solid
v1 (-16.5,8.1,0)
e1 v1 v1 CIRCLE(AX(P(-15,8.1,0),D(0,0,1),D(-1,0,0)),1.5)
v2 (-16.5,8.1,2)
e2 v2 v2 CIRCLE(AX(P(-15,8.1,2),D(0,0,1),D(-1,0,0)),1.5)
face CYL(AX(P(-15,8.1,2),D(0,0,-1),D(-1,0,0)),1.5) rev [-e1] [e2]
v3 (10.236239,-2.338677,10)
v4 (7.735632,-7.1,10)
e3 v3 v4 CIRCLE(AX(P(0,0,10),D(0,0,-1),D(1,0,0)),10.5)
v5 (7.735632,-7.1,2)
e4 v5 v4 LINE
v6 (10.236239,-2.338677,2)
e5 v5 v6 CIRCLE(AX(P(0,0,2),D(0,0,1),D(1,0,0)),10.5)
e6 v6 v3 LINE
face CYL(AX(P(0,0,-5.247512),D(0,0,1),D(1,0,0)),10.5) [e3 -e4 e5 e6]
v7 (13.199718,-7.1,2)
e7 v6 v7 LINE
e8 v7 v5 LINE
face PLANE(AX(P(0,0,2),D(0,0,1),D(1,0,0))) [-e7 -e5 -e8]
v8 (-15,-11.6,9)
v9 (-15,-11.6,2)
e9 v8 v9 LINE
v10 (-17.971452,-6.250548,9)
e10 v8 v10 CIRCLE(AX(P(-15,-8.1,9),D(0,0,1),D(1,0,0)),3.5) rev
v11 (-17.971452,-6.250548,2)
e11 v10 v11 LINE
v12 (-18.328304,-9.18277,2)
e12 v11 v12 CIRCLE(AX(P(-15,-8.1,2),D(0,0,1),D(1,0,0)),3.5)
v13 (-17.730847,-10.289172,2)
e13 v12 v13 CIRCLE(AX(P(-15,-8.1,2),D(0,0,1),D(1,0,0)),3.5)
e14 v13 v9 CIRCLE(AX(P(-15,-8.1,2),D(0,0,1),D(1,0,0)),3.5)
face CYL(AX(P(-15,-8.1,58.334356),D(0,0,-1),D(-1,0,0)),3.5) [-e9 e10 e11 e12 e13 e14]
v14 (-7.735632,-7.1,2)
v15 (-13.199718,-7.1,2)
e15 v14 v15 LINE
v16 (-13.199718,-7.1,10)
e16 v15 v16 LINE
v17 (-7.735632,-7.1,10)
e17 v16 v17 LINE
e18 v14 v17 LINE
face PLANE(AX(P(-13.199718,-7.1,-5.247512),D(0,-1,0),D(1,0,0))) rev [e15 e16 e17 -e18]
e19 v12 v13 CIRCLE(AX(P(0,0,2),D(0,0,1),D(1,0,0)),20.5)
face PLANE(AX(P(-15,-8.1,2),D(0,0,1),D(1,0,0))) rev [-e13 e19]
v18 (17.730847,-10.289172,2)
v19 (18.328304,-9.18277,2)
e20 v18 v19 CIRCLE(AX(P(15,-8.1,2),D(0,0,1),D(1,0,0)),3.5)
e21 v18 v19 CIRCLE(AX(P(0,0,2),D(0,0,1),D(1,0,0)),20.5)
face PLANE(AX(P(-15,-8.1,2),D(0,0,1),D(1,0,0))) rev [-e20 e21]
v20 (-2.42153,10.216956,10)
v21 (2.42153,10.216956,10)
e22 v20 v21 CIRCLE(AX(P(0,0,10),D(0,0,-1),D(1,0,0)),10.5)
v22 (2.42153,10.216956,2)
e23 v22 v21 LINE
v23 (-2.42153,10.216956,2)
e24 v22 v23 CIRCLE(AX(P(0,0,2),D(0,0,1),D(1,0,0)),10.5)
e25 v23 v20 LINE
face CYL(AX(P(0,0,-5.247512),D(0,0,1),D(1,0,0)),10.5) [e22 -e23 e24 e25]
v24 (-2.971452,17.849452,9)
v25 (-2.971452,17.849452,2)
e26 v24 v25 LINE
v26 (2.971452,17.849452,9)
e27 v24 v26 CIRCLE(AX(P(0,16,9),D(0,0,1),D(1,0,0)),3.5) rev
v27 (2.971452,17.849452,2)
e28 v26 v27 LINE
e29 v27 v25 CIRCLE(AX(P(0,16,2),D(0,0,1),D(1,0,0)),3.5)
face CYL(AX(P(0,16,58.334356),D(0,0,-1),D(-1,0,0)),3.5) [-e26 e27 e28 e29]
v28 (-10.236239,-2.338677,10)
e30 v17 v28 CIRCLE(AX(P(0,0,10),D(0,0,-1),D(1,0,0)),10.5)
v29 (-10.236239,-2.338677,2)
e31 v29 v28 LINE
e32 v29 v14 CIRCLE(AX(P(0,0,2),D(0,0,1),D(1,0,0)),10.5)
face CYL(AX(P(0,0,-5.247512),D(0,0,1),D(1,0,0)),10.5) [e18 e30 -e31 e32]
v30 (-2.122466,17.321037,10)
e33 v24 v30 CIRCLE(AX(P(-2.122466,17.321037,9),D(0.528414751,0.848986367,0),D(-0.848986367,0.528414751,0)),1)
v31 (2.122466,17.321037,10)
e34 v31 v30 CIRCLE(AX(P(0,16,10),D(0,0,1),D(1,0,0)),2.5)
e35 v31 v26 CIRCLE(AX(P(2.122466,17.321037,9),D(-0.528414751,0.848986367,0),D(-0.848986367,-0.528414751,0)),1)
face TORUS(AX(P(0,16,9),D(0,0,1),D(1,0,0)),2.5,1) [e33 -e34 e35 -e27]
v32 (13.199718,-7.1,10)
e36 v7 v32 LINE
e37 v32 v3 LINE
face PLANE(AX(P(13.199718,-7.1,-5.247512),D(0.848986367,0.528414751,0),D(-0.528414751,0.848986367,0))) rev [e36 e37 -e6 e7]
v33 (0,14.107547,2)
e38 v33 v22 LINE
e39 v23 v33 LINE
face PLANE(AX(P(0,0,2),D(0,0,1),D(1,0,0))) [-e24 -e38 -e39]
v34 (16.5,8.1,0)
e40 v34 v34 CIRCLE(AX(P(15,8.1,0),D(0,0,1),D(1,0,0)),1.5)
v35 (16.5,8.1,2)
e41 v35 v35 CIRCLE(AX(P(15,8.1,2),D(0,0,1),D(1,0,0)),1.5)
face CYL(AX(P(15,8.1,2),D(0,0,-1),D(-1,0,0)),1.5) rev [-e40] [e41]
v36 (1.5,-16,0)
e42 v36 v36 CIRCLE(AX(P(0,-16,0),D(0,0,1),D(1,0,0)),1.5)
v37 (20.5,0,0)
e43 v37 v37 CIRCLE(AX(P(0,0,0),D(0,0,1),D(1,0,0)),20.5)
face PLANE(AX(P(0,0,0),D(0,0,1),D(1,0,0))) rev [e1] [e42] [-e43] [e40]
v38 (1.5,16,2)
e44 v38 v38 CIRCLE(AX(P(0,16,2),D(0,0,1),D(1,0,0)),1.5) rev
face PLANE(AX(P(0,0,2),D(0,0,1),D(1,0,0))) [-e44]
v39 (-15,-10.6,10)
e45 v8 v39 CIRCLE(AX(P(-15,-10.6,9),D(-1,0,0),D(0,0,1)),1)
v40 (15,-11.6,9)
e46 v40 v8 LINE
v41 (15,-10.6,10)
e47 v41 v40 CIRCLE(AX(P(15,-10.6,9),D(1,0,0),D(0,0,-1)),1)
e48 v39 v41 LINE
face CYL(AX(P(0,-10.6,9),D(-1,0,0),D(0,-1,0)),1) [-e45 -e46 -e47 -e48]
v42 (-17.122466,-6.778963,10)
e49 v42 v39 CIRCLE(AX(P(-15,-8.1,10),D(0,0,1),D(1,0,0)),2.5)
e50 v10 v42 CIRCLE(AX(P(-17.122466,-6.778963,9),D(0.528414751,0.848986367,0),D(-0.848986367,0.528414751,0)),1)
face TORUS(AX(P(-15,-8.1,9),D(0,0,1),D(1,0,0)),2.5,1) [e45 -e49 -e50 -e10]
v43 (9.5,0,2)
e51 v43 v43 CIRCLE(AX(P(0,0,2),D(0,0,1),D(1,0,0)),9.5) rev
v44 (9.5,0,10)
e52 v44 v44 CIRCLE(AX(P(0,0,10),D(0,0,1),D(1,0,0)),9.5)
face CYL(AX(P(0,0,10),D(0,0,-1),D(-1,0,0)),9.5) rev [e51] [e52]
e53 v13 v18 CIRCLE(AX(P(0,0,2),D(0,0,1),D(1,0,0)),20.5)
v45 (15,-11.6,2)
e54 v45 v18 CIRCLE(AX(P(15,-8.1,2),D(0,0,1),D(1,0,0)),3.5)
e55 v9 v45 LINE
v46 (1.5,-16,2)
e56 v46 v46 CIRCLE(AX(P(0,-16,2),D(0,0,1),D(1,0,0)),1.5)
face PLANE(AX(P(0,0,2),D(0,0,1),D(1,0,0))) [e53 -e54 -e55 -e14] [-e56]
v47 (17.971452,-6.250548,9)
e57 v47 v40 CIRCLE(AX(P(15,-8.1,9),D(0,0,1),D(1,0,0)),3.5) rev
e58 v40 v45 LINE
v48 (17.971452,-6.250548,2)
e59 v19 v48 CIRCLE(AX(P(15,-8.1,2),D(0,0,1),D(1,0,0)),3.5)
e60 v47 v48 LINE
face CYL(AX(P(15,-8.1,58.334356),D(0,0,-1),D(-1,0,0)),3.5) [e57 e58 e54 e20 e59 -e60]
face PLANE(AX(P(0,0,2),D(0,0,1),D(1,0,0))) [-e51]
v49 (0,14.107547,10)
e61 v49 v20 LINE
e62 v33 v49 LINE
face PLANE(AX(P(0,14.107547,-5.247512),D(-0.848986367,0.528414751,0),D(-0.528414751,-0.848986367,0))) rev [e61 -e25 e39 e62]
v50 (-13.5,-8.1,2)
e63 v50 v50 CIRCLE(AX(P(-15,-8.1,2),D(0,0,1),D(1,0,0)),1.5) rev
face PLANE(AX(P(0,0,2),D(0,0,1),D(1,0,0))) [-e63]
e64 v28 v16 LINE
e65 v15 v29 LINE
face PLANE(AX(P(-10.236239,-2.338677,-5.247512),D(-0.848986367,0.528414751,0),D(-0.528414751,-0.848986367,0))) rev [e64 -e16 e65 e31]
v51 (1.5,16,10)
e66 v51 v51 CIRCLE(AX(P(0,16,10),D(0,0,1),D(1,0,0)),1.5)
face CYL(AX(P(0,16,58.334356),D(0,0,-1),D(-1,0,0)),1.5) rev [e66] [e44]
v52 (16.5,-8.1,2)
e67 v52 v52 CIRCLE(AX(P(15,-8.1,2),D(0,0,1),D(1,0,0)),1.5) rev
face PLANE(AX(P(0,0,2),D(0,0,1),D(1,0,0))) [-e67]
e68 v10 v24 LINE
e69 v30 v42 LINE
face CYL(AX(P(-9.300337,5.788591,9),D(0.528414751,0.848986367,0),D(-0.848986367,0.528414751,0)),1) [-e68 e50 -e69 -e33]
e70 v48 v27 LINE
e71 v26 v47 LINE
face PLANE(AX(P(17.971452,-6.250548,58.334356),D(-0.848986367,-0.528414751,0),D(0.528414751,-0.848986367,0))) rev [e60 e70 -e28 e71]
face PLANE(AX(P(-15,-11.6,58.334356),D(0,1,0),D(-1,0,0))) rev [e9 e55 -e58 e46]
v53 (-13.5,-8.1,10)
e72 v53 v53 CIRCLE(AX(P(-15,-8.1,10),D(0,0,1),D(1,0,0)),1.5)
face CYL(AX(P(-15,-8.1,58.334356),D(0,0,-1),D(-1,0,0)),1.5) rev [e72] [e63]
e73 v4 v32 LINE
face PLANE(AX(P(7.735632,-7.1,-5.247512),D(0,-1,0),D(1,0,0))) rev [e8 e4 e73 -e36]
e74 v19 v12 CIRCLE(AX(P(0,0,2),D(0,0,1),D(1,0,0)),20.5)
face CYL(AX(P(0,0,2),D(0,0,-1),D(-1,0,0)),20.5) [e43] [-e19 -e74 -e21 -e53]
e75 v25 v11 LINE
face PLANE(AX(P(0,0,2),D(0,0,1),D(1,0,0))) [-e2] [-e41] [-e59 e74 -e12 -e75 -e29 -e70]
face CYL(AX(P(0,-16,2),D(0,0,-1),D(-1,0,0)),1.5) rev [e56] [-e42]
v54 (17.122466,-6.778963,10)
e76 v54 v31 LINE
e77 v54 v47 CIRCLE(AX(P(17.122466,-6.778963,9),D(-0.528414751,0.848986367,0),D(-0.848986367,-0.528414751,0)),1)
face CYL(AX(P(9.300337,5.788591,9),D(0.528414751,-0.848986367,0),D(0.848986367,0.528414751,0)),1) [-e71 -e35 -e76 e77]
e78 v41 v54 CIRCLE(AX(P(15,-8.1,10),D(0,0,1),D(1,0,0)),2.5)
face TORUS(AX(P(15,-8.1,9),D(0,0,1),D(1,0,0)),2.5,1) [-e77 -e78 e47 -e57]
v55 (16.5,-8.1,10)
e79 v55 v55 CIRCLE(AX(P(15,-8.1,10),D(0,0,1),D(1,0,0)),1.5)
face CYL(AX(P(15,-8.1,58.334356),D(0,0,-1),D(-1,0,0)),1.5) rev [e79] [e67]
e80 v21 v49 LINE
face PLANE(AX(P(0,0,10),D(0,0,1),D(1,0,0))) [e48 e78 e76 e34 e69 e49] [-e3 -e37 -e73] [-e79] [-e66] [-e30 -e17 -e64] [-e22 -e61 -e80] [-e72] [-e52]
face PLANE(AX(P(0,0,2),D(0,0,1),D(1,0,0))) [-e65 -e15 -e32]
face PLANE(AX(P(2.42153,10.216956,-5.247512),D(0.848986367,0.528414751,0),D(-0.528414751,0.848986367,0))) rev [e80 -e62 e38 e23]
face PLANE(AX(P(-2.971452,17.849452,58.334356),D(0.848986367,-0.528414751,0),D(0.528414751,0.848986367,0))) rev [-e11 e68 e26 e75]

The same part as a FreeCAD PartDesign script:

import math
import FreeCAD as App
import Part
import Sketcher

V = App.Vector


def edges_at(feature, points):
    """Names of the edges that pass closest to the given points."""
    edges = feature.Shape.Edges
    near = lambda p: min(range(len(edges)), key=lambda i: edges[i].distToShape(Part.Vertex(*p))[0])
    return sorted({f"Edge{near(p) + 1}" for p in points})

doc = App.newDocument("Part")
body = doc.addObject("PartDesign::Body", "Body")

sketch1 = doc.addObject("Sketcher::SketchObject", "Sketch")
body.addObject(sketch1)
sketch1.AttachmentSupport = (doc.XY_Plane, [""])
sketch1.MapMode = "FlatFace"
sketch1.addGeometry([
    Part.Circle(V(0, 0, 0), V(0, 0, 1), 20.5),
    Part.Circle(V(0, -16, 0), V(0, 0, 1), 1.5),
    Part.Circle(V(-15, 8.1, 0), V(0, 0, 1), 1.5),
    Part.Circle(V(15, 8.1, 0), V(0, 0, 1), 1.5),
], False)
sketch1.addConstraint([
    Sketcher.Constraint("Coincident", 0, 3, -1, 1),
    Sketcher.Constraint("Equal", 1, 2),
    Sketcher.Constraint("Equal", 2, 3),
    Sketcher.Constraint("Symmetric", 2, 3, 3, 3, -2),
    Sketcher.Constraint("PointOnObject", 1, 3, -2),
    Sketcher.Constraint("Diameter", 0, 41.0),
    Sketcher.Constraint("Diameter", 1, 3.0),
    Sketcher.Constraint("DistanceY", 1, 3, -1, 1, 16.0),
    Sketcher.Constraint("DistanceX", 2, 3, -1, 1, 15.0),
    Sketcher.Constraint("DistanceY", -1, 1, 2, 3, 8.1),
])
pad1 = doc.addObject("PartDesign::Pad", "Pad")
body.addObject(pad1)
pad1.Profile = sketch1
pad1.Length = 2

sketch2 = doc.addObject("Sketcher::SketchObject", "Sketch001")
body.addObject(sketch2)
sketch2.AttachmentSupport = (doc.XY_Plane, [""])
sketch2.MapMode = "FlatFace"
sketch2.AttachmentOffset = App.Placement(V(0, 0, 2), App.Rotation())
sketch2.addGeometry([
    Part.Circle(V(0, 0, 0), V(0, 0, 1), 12),
    Part.Circle(V(0, 0, 0), V(0, 0, 1), 10),
], False)
sketch2.addConstraint([
    Sketcher.Constraint("Coincident", 0, 3, -1, 1),
    Sketcher.Constraint("Coincident", 1, 3, -1, 1),
    Sketcher.Constraint("Diameter", 0, 23.0),
    Sketcher.Constraint("Diameter", 1, 19.0),
])
pad2 = doc.addObject("PartDesign::Pad", "Pad001")
body.addObject(pad2)
pad2.Profile = sketch2
pad2.Length = 8

sketch3 = doc.addObject("Sketcher::SketchObject", "Sketch002")
body.addObject(sketch3)
sketch3.AttachmentSupport = (doc.XY_Plane, [""])
sketch3.MapMode = "FlatFace"
sketch3.AttachmentOffset = App.Placement(V(0, 0, 2), App.Rotation())
sketch3.addGeometry([
    Part.LineSegment(V(-15, -11.6, 0), V(15, -11.6, 0)),
    Part.ArcOfCircle(Part.Circle(V(15, -8.1, 0), V(0, 0, 1), 3.5), math.radians(-90), math.radians(32)),
    Part.LineSegment(V(18, -6.3, 0), V(3, 17.8, 0)),
    Part.ArcOfCircle(Part.Circle(V(0, 16, 0), V(0, 0, 1), 3.5), math.radians(32), math.radians(148)),
    Part.LineSegment(V(-3, 17.8, 0), V(-18, -6.3, 0)),
    Part.ArcOfCircle(Part.Circle(V(-15, -8.1, 0), V(0, 0, 1), 3.5), math.radians(148), math.radians(270)),
    Part.Circle(V(-15, -8.1, 0), V(0, 0, 1), 1.5),
    Part.Circle(V(15, -8.1, 0), V(0, 0, 1), 1.5),
    Part.Circle(V(0, 0, 0), V(0, 0, 1), 9.5),
    Part.Circle(V(0, 16, 0), V(0, 0, 1), 1.5),
], False)
sketch3.addConstraint([
    Sketcher.Constraint("Tangent", 0, 2, 1, 1),
    Sketcher.Constraint("Tangent", 1, 2, 2, 1),
    Sketcher.Constraint("Tangent", 2, 2, 3, 1),
    Sketcher.Constraint("Tangent", 3, 2, 4, 1),
    Sketcher.Constraint("Tangent", 4, 2, 5, 1),
    Sketcher.Constraint("Tangent", 5, 2, 0, 1),
    Sketcher.Constraint("Horizontal", 0),
    Sketcher.Constraint("Coincident", 8, 3, -1, 1),
    Sketcher.Constraint("Coincident", 6, 3, 5, 3),
    Sketcher.Constraint("Coincident", 7, 3, 1, 3),
    Sketcher.Constraint("Coincident", 9, 3, 3, 3),
    Sketcher.Constraint("Equal", 1, 3),
    Sketcher.Constraint("Equal", 3, 5),
    Sketcher.Constraint("Equal", 6, 7),
    Sketcher.Constraint("Equal", 7, 9),
    Sketcher.Constraint("Symmetric", 2, 2, 3, 2, -2),
    Sketcher.Constraint("Diameter", 6, 3.0),
    Sketcher.Constraint("Diameter", 8, 19.0),
    Sketcher.Constraint("Radius", 1, 3.5),
    Sketcher.Constraint("DistanceX", 0, 1, 0, 2, 30.0),
    Sketcher.Constraint("DistanceY", -1, 1, 3, 3, 16.0),
    Sketcher.Constraint("DistanceY", 1, 3, -1, 1, 8.1),
])
pad3 = doc.addObject("PartDesign::Pad", "Pad002")
body.addObject(pad3)
pad3.Profile = sketch3
pad3.Length = 8
doc.recompute()

fillet = doc.addObject("PartDesign::Fillet", "Fillet")
body.addObject(fillet)
fillet.Base = (pad3, edges_at(pad3, [
    (-10.471, 5.799, 10),
    (-18.06, -9.8, 10),
    (0, -11.6, 10),
    (18.06, -9.8, 10),
    (10.471, 5.799, 10),
    (0, 19.5, 10),
]))
fillet.Radius = 1

sketch4 = doc.addObject("Sketcher::SketchObject", "Sketch003")
body.addObject(sketch4)
sketch4.AttachmentSupport = (doc.XY_Plane, [""])
sketch4.MapMode = "FlatFace"
sketch4.AttachmentOffset = App.Placement(V(0, 0, 10), App.Rotation())
sketch4.addGeometry([
    Part.LineSegment(V(-10.2, -2.3, 0), V(-13.2, -7.1, 0)),
    Part.LineSegment(V(-13.2, -7.1, 0), V(-7.7, -7.1, 0)),
    Part.ArcOfCircle(Part.Circle(V(0, 0, 0), V(0, 0, 1), 10.5), math.radians(-167), math.radians(-137)),
    Part.LineSegment(V(2.4, 10.2, 0), V(0, 14.1, 0)),
    Part.LineSegment(V(0, 14.1, 0), V(-2.4, 10.2, 0)),
    Part.ArcOfCircle(Part.Circle(V(0, 0, 0), V(0, 0, 1), 10.5), math.radians(77), math.radians(103)),
    Part.LineSegment(V(7.7, -7.1, 0), V(13.2, -7.1, 0)),
    Part.LineSegment(V(13.2, -7.1, 0), V(10.2, -2.3, 0)),
    Part.ArcOfCircle(Part.Circle(V(0, 0, 0), V(0, 0, 1), 10.5), math.radians(-43), math.radians(-13)),
], False)
sketch4.addConstraint([
    Sketcher.Constraint("Coincident", 0, 2, 1, 1),
    Sketcher.Constraint("Coincident", 1, 2, 2, 2),
    Sketcher.Constraint("Coincident", 2, 1, 0, 1),
    Sketcher.Constraint("Coincident", 3, 2, 4, 1),
    Sketcher.Constraint("Coincident", 4, 2, 5, 2),
    Sketcher.Constraint("Coincident", 5, 1, 3, 1),
    Sketcher.Constraint("Coincident", 6, 2, 7, 1),
    Sketcher.Constraint("Coincident", 7, 2, 8, 2),
    Sketcher.Constraint("Coincident", 8, 1, 6, 1),
    Sketcher.Constraint("Horizontal", 1),
    Sketcher.Constraint("Horizontal", 6),
    Sketcher.Constraint("Coincident", 2, 3, -1, 1),
    Sketcher.Constraint("Coincident", 5, 3, -1, 1),
    Sketcher.Constraint("Coincident", 8, 3, -1, 1),
    Sketcher.Constraint("Equal", 2, 5),
    Sketcher.Constraint("Equal", 5, 8),
    Sketcher.Constraint("Symmetric", 0, 2, 6, 2, -2),
    Sketcher.Constraint("PointOnObject", 3, 2, -2),
    Sketcher.Constraint("Parallel", 0, 4),
    Sketcher.Constraint("Parallel", 3, 7),
    Sketcher.Constraint("Horizontal", 4, 2, 5, 1),
    Sketcher.Constraint("Radius", 2, 10.5),
    Sketcher.Constraint("DistanceY", 0, 2, -1, 1, 7.1),
    Sketcher.Constraint("Distance", 3, 4.582631),
    Sketcher.Constraint("DistanceX", 1, 1, 1, 2, 5.464086),
    Sketcher.Constraint("DistanceX", 2, 1, -1, 1, 10.236239),
])
pocket1 = doc.addObject("PartDesign::Pocket", "Pocket")
body.addObject(pocket1)
pocket1.Profile = sketch4
pocket1.Length = 8

doc.recompute()
